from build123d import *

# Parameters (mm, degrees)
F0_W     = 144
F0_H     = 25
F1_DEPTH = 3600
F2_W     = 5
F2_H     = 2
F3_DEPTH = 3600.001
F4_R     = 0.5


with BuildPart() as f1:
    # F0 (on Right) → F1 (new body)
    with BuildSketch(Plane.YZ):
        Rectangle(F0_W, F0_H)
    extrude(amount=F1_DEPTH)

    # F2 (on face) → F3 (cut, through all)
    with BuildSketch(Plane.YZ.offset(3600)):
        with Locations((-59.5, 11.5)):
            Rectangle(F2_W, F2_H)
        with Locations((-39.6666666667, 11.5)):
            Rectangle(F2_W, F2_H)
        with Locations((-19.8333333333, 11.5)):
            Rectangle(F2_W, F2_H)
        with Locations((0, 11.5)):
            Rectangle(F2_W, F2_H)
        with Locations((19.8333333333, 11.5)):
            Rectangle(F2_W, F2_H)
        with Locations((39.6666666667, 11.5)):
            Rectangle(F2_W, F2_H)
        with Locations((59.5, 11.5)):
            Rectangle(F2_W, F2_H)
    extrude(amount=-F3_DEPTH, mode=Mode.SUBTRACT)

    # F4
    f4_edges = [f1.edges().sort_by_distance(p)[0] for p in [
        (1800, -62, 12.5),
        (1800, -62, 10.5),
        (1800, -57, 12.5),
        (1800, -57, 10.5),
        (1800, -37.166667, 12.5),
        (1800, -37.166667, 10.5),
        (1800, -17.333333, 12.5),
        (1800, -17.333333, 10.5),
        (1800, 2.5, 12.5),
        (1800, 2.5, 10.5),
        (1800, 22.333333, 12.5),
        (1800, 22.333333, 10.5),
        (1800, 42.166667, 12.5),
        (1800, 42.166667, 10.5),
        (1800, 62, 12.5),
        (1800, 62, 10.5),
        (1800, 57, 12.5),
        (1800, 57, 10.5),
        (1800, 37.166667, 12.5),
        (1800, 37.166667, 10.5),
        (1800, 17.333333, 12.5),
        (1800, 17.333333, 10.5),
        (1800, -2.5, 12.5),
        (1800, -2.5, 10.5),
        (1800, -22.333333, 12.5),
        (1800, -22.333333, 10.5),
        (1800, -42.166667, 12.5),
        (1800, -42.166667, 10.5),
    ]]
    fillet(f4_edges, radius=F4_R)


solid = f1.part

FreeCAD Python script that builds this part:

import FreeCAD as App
import Part
import Sketcher

V = App.Vector


def edges_at(feature, points):
    """Names of the edges that pass closest to the given points."""
    edges = feature.Shape.Edges
    near = lambda p: min(range(len(edges)), key=lambda i: edges[i].distToShape(Part.Vertex(*p))[0])
    return sorted({f"Edge{near(p) + 1}" for p in points})

doc = App.newDocument("Part")
body = doc.addObject("PartDesign::Body", "Body")

# Sketch on YZ plane
sketch1 = doc.addObject("Sketcher::SketchObject", "Sketch")
body.addObject(sketch1)
sketch1.AttachmentSupport = (doc.YZ_Plane, [""])
sketch1.MapMode = "FlatFace"
sketch1.addGeometry(Part.LineSegment(V(-72, 12, 0), V(-72, -12, 0)), False)
sketch1.addGeometry(Part.LineSegment(V(-72, -12, 0), V(72, -12, 0)), False)
sketch1.addGeometry(Part.LineSegment(V(72, -12, 0), V(72, 12, 0)), False)
sketch1.addGeometry(Part.LineSegment(V(72, 12, 0), V(-72, 12, 0)), False)
sketch1.addConstraint(Sketcher.Constraint("Coincident", 0, 2, 1, 1))
sketch1.addConstraint(Sketcher.Constraint("Coincident", 1, 2, 2, 1))
sketch1.addConstraint(Sketcher.Constraint("Coincident", 2, 2, 3, 1))
sketch1.addConstraint(Sketcher.Constraint("Coincident", 3, 2, 0, 1))
sketch1.addConstraint(Sketcher.Constraint("Vertical", 0))
sketch1.addConstraint(Sketcher.Constraint("Horizontal", 1))
sketch1.addConstraint(Sketcher.Constraint("Vertical", 2))
sketch1.addConstraint(Sketcher.Constraint("Horizontal", 3))
sketch1.addConstraint(Sketcher.Constraint("Symmetric", 0, 2, 2, 2, -1, 1))
sketch1.addConstraint(Sketcher.Constraint("DistanceX", 1, 1, 1, 2, 144.0))
sketch1.addConstraint(Sketcher.Constraint("DistanceY", 0, 2, 0, 1, 25.0))
pad1 = doc.addObject("PartDesign::Pad", "Pad")
body.addObject(pad1)
pad1.Profile = sketch1
pad1.Length = 3600

# Sketch on YZ plane
sketch2 = doc.addObject("Sketcher::SketchObject", "Sketch001")
body.addObject(sketch2)
sketch2.AttachmentSupport = (doc.YZ_Plane, [""])
sketch2.MapMode = "FlatFace"
sketch2.AttachmentOffset = App.Placement(V(0, 0, 3600), App.Rotation())
sketch2.addGeometry(Part.LineSegment(V(-62, 12.5, 0), V(-62, 10.5, 0)), False)
sketch2.addGeometry(Part.LineSegment(V(-62, 10.5, 0), V(-57, 10.5, 0)), False)
sketch2.addGeometry(Part.LineSegment(V(-57, 10.5, 0), V(-57, 12.5, 0)), False)
sketch2.addGeometry(Part.LineSegment(V(-57, 12.5, 0), V(-62, 12.5, 0)), False)
sketch2.addGeometry(Part.LineSegment(V(-42.2, 12.5, 0), V(-42.2, 10.5, 0)), False)
sketch2.addGeometry(Part.LineSegment(V(-42.2, 10.5, 0), V(-37.2, 10.5, 0)), False)
sketch2.addGeometry(Part.LineSegment(V(-37.2, 10.5, 0), V(-37.2, 12.5, 0)), False)
sketch2.addGeometry(Part.LineSegment(V(-37.2, 12.5, 0), V(-42.2, 12.5, 0)), False)
sketch2.addGeometry(Part.LineSegment(V(-22.3, 12.5, 0), V(-22.3, 10.5, 0)), False)
sketch2.addGeometry(Part.LineSegment(V(-22.3, 10.5, 0), V(-17.3, 10.5, 0)), False)
sketch2.addGeometry(Part.LineSegment(V(-17.3, 10.5, 0), V(-17.3, 12.5, 0)), False)
sketch2.addGeometry(Part.LineSegment(V(-17.3, 12.5, 0), V(-22.3, 12.5, 0)), False)
sketch2.addGeometry(Part.LineSegment(V(-2.5, 12.5, 0), V(-2.5, 10.5, 0)), False)
sketch2.addGeometry(Part.LineSegment(V(-2.5, 10.5, 0), V(2.5, 10.5, 0)), False)
sketch2.addGeometry(Part.LineSegment(V(2.5, 10.5, 0), V(2.5, 12.5, 0)), False)
sketch2.addGeometry(Part.LineSegment(V(2.5, 12.5, 0), V(-2.5, 12.5, 0)), False)
sketch2.addGeometry(Part.LineSegment(V(17.3, 12.5, 0), V(17.3, 10.5, 0)), False)
sketch2.addGeometry(Part.LineSegment(V(17.3, 10.5, 0), V(22.3, 10.5, 0)), False)
sketch2.addGeometry(Part.LineSegment(V(22.3, 10.5, 0), V(22.3, 12.5, 0)), False)
sketch2.addGeometry(Part.LineSegment(V(22.3, 12.5, 0), V(17.3, 12.5, 0)), False)
sketch2.addGeometry(Part.LineSegment(V(37.2, 12.5, 0), V(37.2, 10.5, 0)), False)
sketch2.addGeometry(Part.LineSegment(V(37.2, 10.5, 0), V(42.2, 10.5, 0)), False)
sketch2.addGeometry(Part.LineSegment(V(42.2, 10.5, 0), V(42.2, 12.5, 0)), False)
sketch2.addGeometry(Part.LineSegment(V(42.2, 12.5, 0), V(37.2, 12.5, 0)), False)
sketch2.addGeometry(Part.LineSegment(V(57, 12.5, 0), V(57, 10.5, 0)), False)
sketch2.addGeometry(Part.LineSegment(V(57, 10.5, 0), V(62, 10.5, 0)), False)
sketch2.addGeometry(Part.LineSegment(V(62, 10.5, 0), V(62, 12.5, 0)), False)
sketch2.addGeometry(Part.LineSegment(V(62, 12.5, 0), V(57, 12.5, 0)), False)
sketch2.addConstraint(Sketcher.Constraint("Coincident", 0, 2, 1, 1))
sketch2.addConstraint(Sketcher.Constraint("Coincident", 1, 2, 2, 1))
sketch2.addConstraint(Sketcher.Constraint("Coincident", 2, 2, 3, 1))
sketch2.addConstraint(Sketcher.Constraint("Coincident", 3, 2, 0, 1))
sketch2.addConstraint(Sketcher.Constraint("Coincident", 4, 2, 5, 1))
sketch2.addConstraint(Sketcher.Constraint("Coincident", 5, 2, 6, 1))
sketch2.addConstraint(Sketcher.Constraint("Coincident", 6, 2, 7, 1))
sketch2.addConstraint(Sketcher.Constraint("Coincident", 7, 2, 4, 1))
sketch2.addConstraint(Sketcher.Constraint("Coincident", 8, 2, 9, 1))
sketch2.addConstraint(Sketcher.Constraint("Coincident", 9, 2, 10, 1))
sketch2.addConstraint(Sketcher.Constraint("Coincident", 10, 2, 11, 1))
sketch2.addConstraint(Sketcher.Constraint("Coincident", 11, 2, 8, 1))
sketch2.addConstraint(Sketcher.Constraint("Coincident", 12, 2, 13, 1))
sketch2.addConstraint(Sketcher.Constraint("Coincident", 13, 2, 14, 1))
sketch2.addConstraint(Sketcher.Constraint("Coincident", 14, 2, 15, 1))
sketch2.addConstraint(Sketcher.Constraint("Coincident", 15, 2, 12, 1))
sketch2.addConstraint(Sketcher.Constraint("Coincident", 16, 2, 17, 1))
sketch2.addConstraint(Sketcher.Constraint("Coincident", 17, 2, 18, 1))
sketch2.addConstraint(Sketcher.Constraint("Coincident", 18, 2, 19, 1))
sketch2.addConstraint(Sketcher.Constraint("Coincident", 19, 2, 16, 1))
sketch2.addConstraint(Sketcher.Constraint("Coincident", 20, 2, 21, 1))
sketch2.addConstraint(Sketcher.Constraint("Coincident", 21, 2, 22, 1))
sketch2.addConstraint(Sketcher.Constraint("Coincident", 22, 2, 23, 1))
sketch2.addConstraint(Sketcher.Constraint("Coincident", 23, 2, 20, 1))
sketch2.addConstraint(Sketcher.Constraint("Coincident", 24, 2, 25, 1))
sketch2.addConstraint(Sketcher.Constraint("Coincident", 25, 2, 26, 1))
sketch2.addConstraint(Sketcher.Constraint("Coincident", 26, 2, 27, 1))
sketch2.addConstraint(Sketcher.Constraint("Coincident", 27, 2, 24, 1))
sketch2.addConstraint(Sketcher.Constraint("Vertical", 0))
sketch2.addConstraint(Sketcher.Constraint("Horizontal", 1))
sketch2.addConstraint(Sketcher.Constraint("Vertical", 2))
sketch2.addConstraint(Sketcher.Constraint("Horizontal", 3))
sketch2.addConstraint(Sketcher.Constraint("Vertical", 4))
sketch2.addConstraint(Sketcher.Constraint("Horizontal", 5))
sketch2.addConstraint(Sketcher.Constraint("Vertical", 6))
sketch2.addConstraint(Sketcher.Constraint("Horizontal", 7))
sketch2.addConstraint(Sketcher.Constraint("Vertical", 8))
sketch2.addConstraint(Sketcher.Constraint("Horizontal", 9))
sketch2.addConstraint(Sketcher.Constraint("Vertical", 10))
sketch2.addConstraint(Sketcher.Constraint("Horizontal", 11))
sketch2.addConstraint(Sketcher.Constraint("Vertical", 12))
sketch2.addConstraint(Sketcher.Constraint("Horizontal", 13))
sketch2.addConstraint(Sketcher.Constraint("Vertical", 14))
sketch2.addConstraint(Sketcher.Constraint("Horizontal", 15))
sketch2.addConstraint(Sketcher.Constraint("Vertical", 16))
sketch2.addConstraint(Sketcher.Constraint("Horizontal", 17))
sketch2.addConstraint(Sketcher.Constraint("Vertical", 18))
sketch2.addConstraint(Sketcher.Constraint("Horizontal", 19))
sketch2.addConstraint(Sketcher.Constraint("Vertical", 20))
sketch2.addConstraint(Sketcher.Constraint("Horizontal", 21))
sketch2.addConstraint(Sketcher.Constraint("Vertical", 22))
sketch2.addConstraint(Sketcher.Constraint("Horizontal", 23))
sketch2.addConstraint(Sketcher.Constraint("Vertical", 24))
sketch2.addConstraint(Sketcher.Constraint("Horizontal", 25))
sketch2.addConstraint(Sketcher.Constraint("Vertical", 26))
sketch2.addConstraint(Sketcher.Constraint("Horizontal", 27))
sketch2.addConstraint(Sketcher.Constraint("Symmetric", 9, 2, 16, 2, -2))
sketch2.addConstraint(Sketcher.Constraint("Symmetric", 11, 2, 18, 2, -2))
sketch2.addConstraint(Sketcher.Constraint("Symmetric", 5, 2, 20, 2, -2))
sketch2.addConstraint(Sketcher.Constraint("Symmetric", 7, 2, 22, 2, -2))
sketch2.addConstraint(Sketcher.Constraint("Symmetric", 1, 2, 24, 2, -2))
sketch2.addConstraint(Sketcher.Constraint("Symmetric", 3, 2, 26, 2, -2))
sketch2.addConstraint(Sketcher.Constraint("Horizontal", 1, 2, 4, 2))
sketch2.addConstraint(Sketcher.Constraint("Horizontal", 3, 2, 6, 2))
sketch2.addConstraint(Sketcher.Constraint("Horizontal", 5, 2, 8, 2))
sketch2.addConstraint(Sketcher.Constraint("Horizontal", 7, 2, 10, 2))
sketch2.addConstraint(Sketcher.Constraint("Horizontal", 9, 2, 12, 2))
sketch2.addConstraint(Sketcher.Constraint("Horizontal", 11, 2, 14, 2))
sketch2.addConstraint(Sketcher.Constraint("Equal", 3, 5))
sketch2.addConstraint(Sketcher.Constraint("Equal", 7, 9))
sketch2.addConstraint(Sketcher.Constraint("Equal", 11, 13))
sketch2.addConstraint(Sketcher.Constraint("DistanceX", 1, 1, 1, 2, 5.0))
sketch2.addConstraint(Sketcher.Constraint("DistanceY", 0, 2, 0, 1, 2.0))
sketch2.addConstraint(Sketcher.Constraint("DistanceX", 0, 2, -1, 1, 62.0))
sketch2.addConstraint(Sketcher.Constraint("DistanceY", -1, 1, 0, 2, 10.5))
sketch2.addConstraint(Sketcher.Constraint("DistanceX", 12, 2, -1, 1, 2.5))
sketch2.addConstraint(Sketcher.Constraint("DistanceX", 4, 2, -1, 1, 42.166667))
sketch2.addConstraint(Sketcher.Constraint("DistanceX", 8, 2, -1, 1, 22.333333))
pocket1 = doc.addObject("PartDesign::Pocket", "Pocket")
body.addObject(pocket1)
pocket1.Profile = sketch2
pocket1.Type = "ThroughAll"
doc.recompute()

fillet = doc.addObject("PartDesign::Fillet", "Fillet")
body.addObject(fillet)
fillet.Base = (pocket1, edges_at(pocket1, [
    (1800, -62, 12.5),
    (1800, -62, 10.5),
    (1800, -57, 12.5),
    (1800, -57, 10.5),
    (1800, -37.167, 12.5),
    (1800, -37.167, 10.5),
    (1800, -17.333, 12.5),
    (1800, -17.333, 10.5),
    (1800, 2.5, 12.5),
    (1800, 2.5, 10.5),
    (1800, 22.333, 12.5),
    (1800, 22.333, 10.5),
    (1800, 42.167, 12.5),
    (1800, 42.167, 10.5),
    (1800, 62, 12.5),
    (1800, 62, 10.5),
    (1800, 57, 12.5),
    (1800, 57, 10.5),
    (1800, 37.167, 12.5),
    (1800, 37.167, 10.5),
    (1800, 17.333, 12.5),
    (1800, 17.333, 10.5),
    (1800, -2.5, 12.5),
    (1800, -2.5, 10.5),
    (1800, -22.333, 12.5),
    (1800, -22.333, 10.5),
    (1800, -42.167, 12.5),
    (1800, -42.167, 10.5),
]))
fillet.Radius = 0.5

doc.recompute()
